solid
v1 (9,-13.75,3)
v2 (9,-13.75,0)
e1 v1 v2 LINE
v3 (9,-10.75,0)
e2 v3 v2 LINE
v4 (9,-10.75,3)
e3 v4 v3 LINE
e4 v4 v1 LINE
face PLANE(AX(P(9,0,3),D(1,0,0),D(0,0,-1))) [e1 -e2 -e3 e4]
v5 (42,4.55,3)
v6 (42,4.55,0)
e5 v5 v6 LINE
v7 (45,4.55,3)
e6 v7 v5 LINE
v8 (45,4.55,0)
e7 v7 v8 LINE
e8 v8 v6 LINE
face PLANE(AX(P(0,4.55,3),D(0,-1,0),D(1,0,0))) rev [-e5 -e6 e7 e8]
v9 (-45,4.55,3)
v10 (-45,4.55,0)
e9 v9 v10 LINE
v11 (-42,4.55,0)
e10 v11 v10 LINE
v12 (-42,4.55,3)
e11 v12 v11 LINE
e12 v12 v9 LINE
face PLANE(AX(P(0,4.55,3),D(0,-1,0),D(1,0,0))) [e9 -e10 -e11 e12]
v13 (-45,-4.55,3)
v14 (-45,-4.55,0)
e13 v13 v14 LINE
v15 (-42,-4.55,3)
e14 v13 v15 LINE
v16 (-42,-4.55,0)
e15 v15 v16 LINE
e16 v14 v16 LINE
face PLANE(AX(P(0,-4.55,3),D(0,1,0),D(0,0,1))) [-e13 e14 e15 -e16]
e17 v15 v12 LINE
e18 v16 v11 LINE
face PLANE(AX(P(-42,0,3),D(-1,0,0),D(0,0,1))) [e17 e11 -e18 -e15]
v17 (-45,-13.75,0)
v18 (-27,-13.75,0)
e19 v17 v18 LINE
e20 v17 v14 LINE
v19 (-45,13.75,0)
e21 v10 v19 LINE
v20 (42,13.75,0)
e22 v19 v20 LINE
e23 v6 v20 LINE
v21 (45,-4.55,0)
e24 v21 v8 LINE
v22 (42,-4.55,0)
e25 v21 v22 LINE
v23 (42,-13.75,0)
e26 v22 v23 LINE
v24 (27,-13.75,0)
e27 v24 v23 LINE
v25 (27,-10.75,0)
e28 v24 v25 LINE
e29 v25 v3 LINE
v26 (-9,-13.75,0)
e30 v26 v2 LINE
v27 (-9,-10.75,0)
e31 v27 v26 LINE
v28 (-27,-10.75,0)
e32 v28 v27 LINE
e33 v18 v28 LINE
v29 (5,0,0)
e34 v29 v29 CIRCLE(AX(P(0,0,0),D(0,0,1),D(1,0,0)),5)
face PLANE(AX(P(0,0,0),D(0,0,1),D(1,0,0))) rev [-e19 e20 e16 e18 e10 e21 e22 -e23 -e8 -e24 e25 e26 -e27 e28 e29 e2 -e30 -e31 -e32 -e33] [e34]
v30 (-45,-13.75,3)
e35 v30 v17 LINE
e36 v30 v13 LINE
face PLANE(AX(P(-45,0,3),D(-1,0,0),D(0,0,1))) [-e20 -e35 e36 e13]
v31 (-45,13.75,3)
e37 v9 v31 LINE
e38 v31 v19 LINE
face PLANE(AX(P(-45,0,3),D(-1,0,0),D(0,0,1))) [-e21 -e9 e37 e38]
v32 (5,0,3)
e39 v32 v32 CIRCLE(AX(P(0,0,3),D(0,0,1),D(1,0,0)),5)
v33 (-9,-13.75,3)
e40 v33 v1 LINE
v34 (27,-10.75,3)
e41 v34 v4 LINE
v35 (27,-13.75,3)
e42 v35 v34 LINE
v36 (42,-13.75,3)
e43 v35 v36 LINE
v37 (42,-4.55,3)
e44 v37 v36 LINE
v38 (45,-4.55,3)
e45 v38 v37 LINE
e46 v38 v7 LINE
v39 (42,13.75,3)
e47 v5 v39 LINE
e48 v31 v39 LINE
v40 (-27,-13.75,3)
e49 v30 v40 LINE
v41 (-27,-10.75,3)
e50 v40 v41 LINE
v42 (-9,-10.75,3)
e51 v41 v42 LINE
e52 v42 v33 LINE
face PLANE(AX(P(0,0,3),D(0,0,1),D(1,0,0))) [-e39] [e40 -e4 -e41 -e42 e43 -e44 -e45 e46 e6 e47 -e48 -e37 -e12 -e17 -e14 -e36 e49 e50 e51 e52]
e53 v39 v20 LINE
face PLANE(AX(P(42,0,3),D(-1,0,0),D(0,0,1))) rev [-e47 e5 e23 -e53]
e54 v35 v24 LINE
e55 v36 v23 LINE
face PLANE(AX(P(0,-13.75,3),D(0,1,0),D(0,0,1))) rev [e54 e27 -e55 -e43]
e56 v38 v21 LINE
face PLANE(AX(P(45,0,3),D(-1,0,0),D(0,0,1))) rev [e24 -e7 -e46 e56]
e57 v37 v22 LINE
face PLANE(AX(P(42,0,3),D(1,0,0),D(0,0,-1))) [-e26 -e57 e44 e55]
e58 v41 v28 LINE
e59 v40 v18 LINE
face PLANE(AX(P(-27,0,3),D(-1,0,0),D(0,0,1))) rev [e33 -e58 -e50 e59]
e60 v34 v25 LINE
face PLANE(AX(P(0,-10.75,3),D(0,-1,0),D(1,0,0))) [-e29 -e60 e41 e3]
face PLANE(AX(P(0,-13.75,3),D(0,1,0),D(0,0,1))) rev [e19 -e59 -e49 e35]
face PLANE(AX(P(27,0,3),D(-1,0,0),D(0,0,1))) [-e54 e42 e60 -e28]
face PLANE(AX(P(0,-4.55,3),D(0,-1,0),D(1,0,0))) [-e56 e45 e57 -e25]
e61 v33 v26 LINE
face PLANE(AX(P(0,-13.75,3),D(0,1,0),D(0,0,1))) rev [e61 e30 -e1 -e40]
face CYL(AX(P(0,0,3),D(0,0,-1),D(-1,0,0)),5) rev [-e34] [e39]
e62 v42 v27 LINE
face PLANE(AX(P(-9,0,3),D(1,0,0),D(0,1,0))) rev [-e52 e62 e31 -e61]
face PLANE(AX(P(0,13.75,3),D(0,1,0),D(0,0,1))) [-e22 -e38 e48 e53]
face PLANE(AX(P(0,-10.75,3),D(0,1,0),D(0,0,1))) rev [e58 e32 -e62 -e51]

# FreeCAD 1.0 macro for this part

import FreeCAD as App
import Part
import Sketcher

V = App.Vector
Q = App.Units.Quantity

doc = App.newDocument("Part")
body = doc.addObject("PartDesign::Body", "Body")

# Sketch on XY plane
sketch1 = body.newObject("Sketcher::SketchObject", "Sketch")
sketch1.AttachmentSupport = (doc.getObject("XY_Plane"), [""])
sketch1.MapMode = "FlatFace"
sketch1.addGeometry(Part.LineSegment(V(-42, -4.5, 0), V(-45, -4.5, 0)), False)
sketch1.addGeometry(Part.LineSegment(V(-45, -4.5, 0), V(-45, -13.8, 0)), False)
sketch1.addGeometry(Part.LineSegment(V(-45, -13.8, 0), V(-27, -13.8, 0)), False)
sketch1.addGeometry(Part.LineSegment(V(-27, -13.8, 0), V(-27, -10.8, 0)), False)
sketch1.addGeometry(Part.LineSegment(V(-27, -10.8, 0), V(-9, -10.8, 0)), False)
sketch1.addGeometry(Part.LineSegment(V(-9, -10.8, 0), V(-9, -13.8, 0)), False)
sketch1.addGeometry(Part.LineSegment(V(-9, -13.8, 0), V(9, -13.8, 0)), False)
sketch1.addGeometry(Part.LineSegment(V(9, -13.8, 0), V(9, -10.8, 0)), False)
sketch1.addGeometry(Part.LineSegment(V(9, -10.8, 0), V(27, -10.8, 0)), False)
sketch1.addGeometry(Part.LineSegment(V(27, -10.8, 0), V(27, -13.8, 0)), False)
sketch1.addGeometry(Part.LineSegment(V(27, -13.8, 0), V(42, -13.8, 0)), False)
sketch1.addGeometry(Part.LineSegment(V(42, -13.8, 0), V(42, -4.5, 0)), False)
sketch1.addGeometry(Part.LineSegment(V(42, -4.5, 0), V(45, -4.5, 0)), False)
sketch1.addGeometry(Part.LineSegment(V(45, -4.5, 0), V(45, 4.5, 0)), False)
sketch1.addGeometry(Part.LineSegment(V(45, 4.5, 0), V(42, 4.5, 0)), False)
sketch1.addGeometry(Part.LineSegment(V(42, 4.5, 0), V(42, 13.8, 0)), False)
sketch1.addGeometry(Part.LineSegment(V(42, 13.8, 0), V(-45, 13.8, 0)), False)
sketch1.addGeometry(Part.LineSegment(V(-45, 13.8, 0), V(-45, 4.5, 0)), False)
sketch1.addGeometry(Part.LineSegment(V(-45, 4.5, 0), V(-42, 4.5, 0)), False)
sketch1.addGeometry(Part.LineSegment(V(-42, 4.5, 0), V(-42, -4.5, 0)), False)
sketch1.addGeometry(Part.Circle(V(0, 0, 0), V(0, 0, 1), 5), False)
sketch1.addConstraint(Sketcher.Constraint("Coincident", 0, 2, 1, 1))
sketch1.addConstraint(Sketcher.Constraint("Coincident", 1, 2, 2, 1))
sketch1.addConstraint(Sketcher.Constraint("Coincident", 2, 2, 3, 1))
sketch1.addConstraint(Sketcher.Constraint("Coincident", 3, 2, 4, 1))
sketch1.addConstraint(Sketcher.Constraint("Coincident", 4, 2, 5, 1))
sketch1.addConstraint(Sketcher.Constraint("Coincident", 5, 2, 6, 1))
sketch1.addConstraint(Sketcher.Constraint("Coincident", 6, 2, 7, 1))
sketch1.addConstraint(Sketcher.Constraint("Coincident", 7, 2, 8, 1))
sketch1.addConstraint(Sketcher.Constraint("Coincident", 8, 2, 9, 1))
sketch1.addConstraint(Sketcher.Constraint("Coincident", 9, 2, 10, 1))
sketch1.addConstraint(Sketcher.Constraint("Coincident", 10, 2, 11, 1))
sketch1.addConstraint(Sketcher.Constraint("Coincident", 11, 2, 12, 1))
sketch1.addConstraint(Sketcher.Constraint("Coincident", 12, 2, 13, 1))
sketch1.addConstraint(Sketcher.Constraint("Coincident", 13, 2, 14, 1))
sketch1.addConstraint(Sketcher.Constraint("Coincident", 14, 2, 15, 1))
sketch1.addConstraint(Sketcher.Constraint("Coincident", 15, 2, 16, 1))
sketch1.addConstraint(Sketcher.Constraint("Coincident", 16, 2, 17, 1))
sketch1.addConstraint(Sketcher.Constraint("Coincident", 17, 2, 18, 1))
sketch1.addConstraint(Sketcher.Constraint("Coincident", 18, 2, 19, 1))
sketch1.addConstraint(Sketcher.Constraint("Coincident", 19, 2, 0, 1))
sketch1.addConstraint(Sketcher.Constraint("Horizontal", 0))
sketch1.addConstraint(Sketcher.Constraint("Vertical", 1))
sketch1.addConstraint(Sketcher.Constraint("Horizontal", 2))
sketch1.addConstraint(Sketcher.Constraint("Vertical", 3))
sketch1.addConstraint(Sketcher.Constraint("Horizontal", 4))
sketch1.addConstraint(Sketcher.Constraint("Vertical", 5))
sketch1.addConstraint(Sketcher.Constraint("Horizontal", 6))
sketch1.addConstraint(Sketcher.Constraint("Vertical", 7))
sketch1.addConstraint(Sketcher.Constraint("Horizontal", 8))
sketch1.addConstraint(Sketcher.Constraint("Vertical", 9))
sketch1.addConstraint(Sketcher.Constraint("Horizontal", 10))
sketch1.addConstraint(Sketcher.Constraint("Vertical", 11))
sketch1.addConstraint(Sketcher.Constraint("Horizontal", 12))
sketch1.addConstraint(Sketcher.Constraint("Vertical", 13))
sketch1.addConstraint(Sketcher.Constraint("Horizontal", 14))
sketch1.addConstraint(Sketcher.Constraint("Vertical", 15))
sketch1.addConstraint(Sketcher.Constraint("Horizontal", 16))
sketch1.addConstraint(Sketcher.Constraint("Vertical", 17))
sketch1.addConstraint(Sketcher.Constraint("Horizontal", 18))
sketch1.addConstraint(Sketcher.Constraint("Vertical", 19))
sketch1.addConstraint(Sketcher.Constraint("Coincident", 20, 3, -1, 1))
sketch1.addConstraint(Sketcher.Constraint("Symmetric", 0, 2, 13, 2, -1, 1))
sketch1.addConstraint(Sketcher.Constraint("Symmetric", 12, 2, 17, 2, -1, 1))
sketch1.addConstraint(Sketcher.Constraint("Symmetric", 4, 2, 7, 2, -2))
sketch1.addConstraint(Sketcher.Constraint("Symmetric", 2, 2, 9, 2, -2))
sketch1.addConstraint(Sketcher.Constraint("Symmetric", 14, 2, 18, 2, -2))
sketch1.addConstraint(Sketcher.Constraint("Symmetric", 10, 2, 15, 2, -1))
sketch1.addConstraint(Sketcher.Constraint("Horizontal", 2, 2, 5, 2))
sketch1.addConstraint(Sketcher.Constraint("Equal", 2, 4))
sketch1.addConstraint(Sketcher.Constraint("Equal", 4, 6))
sketch1.addConstraint(Sketcher.Constraint("Equal", 18, 3))
sketch1.addConstraint(Sketcher.Constraint("Diameter", 20, Q("10 mm")))
sketch1.addConstraint(Sketcher.Constraint("DistanceX", 0, 2, 0, 1, Q("3 mm")))
sketch1.addConstraint(Sketcher.Constraint("DistanceX", 2, 1, 2, 2, Q("18 mm")))
sketch1.addConstraint(Sketcher.Constraint("DistanceY", 1, 2, 1, 1, Q("9.2 mm")))
sketch1.addConstraint(Sketcher.Constraint("DistanceY", 13, 1, 13, 2, Q("9.1 mm")))
pad1 = body.newObject("PartDesign::Pad", "Pad")
pad1.Profile = sketch1
pad1.Length = 3

doc.recompute()
